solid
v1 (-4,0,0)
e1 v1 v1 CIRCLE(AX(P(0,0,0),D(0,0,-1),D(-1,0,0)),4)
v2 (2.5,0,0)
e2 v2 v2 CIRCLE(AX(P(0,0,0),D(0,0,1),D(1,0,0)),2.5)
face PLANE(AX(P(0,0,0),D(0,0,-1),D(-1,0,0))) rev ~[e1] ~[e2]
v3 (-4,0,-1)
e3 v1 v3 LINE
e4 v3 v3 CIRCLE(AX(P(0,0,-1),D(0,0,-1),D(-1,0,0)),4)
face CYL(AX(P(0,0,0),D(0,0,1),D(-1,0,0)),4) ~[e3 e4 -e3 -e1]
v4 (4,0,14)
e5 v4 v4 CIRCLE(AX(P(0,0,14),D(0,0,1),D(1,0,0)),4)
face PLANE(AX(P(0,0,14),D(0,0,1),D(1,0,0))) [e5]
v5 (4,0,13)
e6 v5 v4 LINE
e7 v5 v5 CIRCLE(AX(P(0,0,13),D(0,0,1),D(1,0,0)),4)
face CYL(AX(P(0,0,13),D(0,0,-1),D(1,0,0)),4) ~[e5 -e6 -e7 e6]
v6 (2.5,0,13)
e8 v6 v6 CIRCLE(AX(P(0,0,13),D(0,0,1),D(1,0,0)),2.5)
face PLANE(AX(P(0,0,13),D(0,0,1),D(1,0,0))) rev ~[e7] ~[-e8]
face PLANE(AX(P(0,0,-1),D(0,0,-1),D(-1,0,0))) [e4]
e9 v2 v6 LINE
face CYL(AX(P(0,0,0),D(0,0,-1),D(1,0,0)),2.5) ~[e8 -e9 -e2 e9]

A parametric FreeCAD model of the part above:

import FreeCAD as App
import Part
import Sketcher
from FreeCAD import Vector
Q = App.Units.Quantity

doc = App.newDocument("Part")
body = doc.addObject("PartDesign::Body", "Body")

sketch1 = doc.addObject("Sketcher::SketchObject", "Sketch")
body.addObject(sketch1)
sketch1.AttachmentSupport = (doc.XY_Plane, [""])
sketch1.MapMode = "FlatFace"
sketch1.addGeometry(Part.Circle(Vector(0, 0, 0), Vector(0, 0, 1), 2.5), False)
sketch1.addConstraint([
    Sketcher.Constraint("Coincident", 0, 3, -1, 1),
    Sketcher.Constraint("Diameter", 0, Q("5 mm")),
])
pad1 = doc.addObject("PartDesign::Pad", "Pad")
body.addObject(pad1)
pad1.Profile = sketch1
pad1.Length = 13

sketch2 = doc.addObject("Sketcher::SketchObject", "Sketch001")
body.addObject(sketch2)
sketch2.AttachmentSupport = (doc.XY_Plane, [""])
sketch2.MapMode = "FlatFace"
sketch2.AttachmentOffset = App.Placement(Vector(0, 0, 13), App.Rotation())
sketch2.addGeometry(Part.Circle(Vector(0, 0, 0), Vector(0, 0, 1), 4), False)
sketch2.addConstraint([
    Sketcher.Constraint("Coincident", 0, 3, -1, 1),
    Sketcher.Constraint("Diameter", 0, Q("8 mm")),
])
pad2 = doc.addObject("PartDesign::Pad", "Pad001")
body.addObject(pad2)
pad2.Profile = sketch2
pad2.Length = 1

sketch3 = doc.addObject("Sketcher::SketchObject", "Sketch002")
body.addObject(sketch3)
sketch3.AttachmentSupport = (doc.XY_Plane, [""])
sketch3.MapMode = "FlatFace"
sketch3.addGeometry(Part.Circle(Vector(0, 0, 0), Vector(0, 0, 1), 4), False)
sketch3.addConstraint([
    Sketcher.Constraint("Coincident", 0, 3, -1, 1),
    Sketcher.Constraint("Diameter", 0, Q("8 mm")),
])
pad3 = doc.addObject("PartDesign::Pad", "Pad002")
body.addObject(pad3)
pad3.Profile = sketch3
pad3.Length = 1
pad3.Reversed = True

doc.recompute()
